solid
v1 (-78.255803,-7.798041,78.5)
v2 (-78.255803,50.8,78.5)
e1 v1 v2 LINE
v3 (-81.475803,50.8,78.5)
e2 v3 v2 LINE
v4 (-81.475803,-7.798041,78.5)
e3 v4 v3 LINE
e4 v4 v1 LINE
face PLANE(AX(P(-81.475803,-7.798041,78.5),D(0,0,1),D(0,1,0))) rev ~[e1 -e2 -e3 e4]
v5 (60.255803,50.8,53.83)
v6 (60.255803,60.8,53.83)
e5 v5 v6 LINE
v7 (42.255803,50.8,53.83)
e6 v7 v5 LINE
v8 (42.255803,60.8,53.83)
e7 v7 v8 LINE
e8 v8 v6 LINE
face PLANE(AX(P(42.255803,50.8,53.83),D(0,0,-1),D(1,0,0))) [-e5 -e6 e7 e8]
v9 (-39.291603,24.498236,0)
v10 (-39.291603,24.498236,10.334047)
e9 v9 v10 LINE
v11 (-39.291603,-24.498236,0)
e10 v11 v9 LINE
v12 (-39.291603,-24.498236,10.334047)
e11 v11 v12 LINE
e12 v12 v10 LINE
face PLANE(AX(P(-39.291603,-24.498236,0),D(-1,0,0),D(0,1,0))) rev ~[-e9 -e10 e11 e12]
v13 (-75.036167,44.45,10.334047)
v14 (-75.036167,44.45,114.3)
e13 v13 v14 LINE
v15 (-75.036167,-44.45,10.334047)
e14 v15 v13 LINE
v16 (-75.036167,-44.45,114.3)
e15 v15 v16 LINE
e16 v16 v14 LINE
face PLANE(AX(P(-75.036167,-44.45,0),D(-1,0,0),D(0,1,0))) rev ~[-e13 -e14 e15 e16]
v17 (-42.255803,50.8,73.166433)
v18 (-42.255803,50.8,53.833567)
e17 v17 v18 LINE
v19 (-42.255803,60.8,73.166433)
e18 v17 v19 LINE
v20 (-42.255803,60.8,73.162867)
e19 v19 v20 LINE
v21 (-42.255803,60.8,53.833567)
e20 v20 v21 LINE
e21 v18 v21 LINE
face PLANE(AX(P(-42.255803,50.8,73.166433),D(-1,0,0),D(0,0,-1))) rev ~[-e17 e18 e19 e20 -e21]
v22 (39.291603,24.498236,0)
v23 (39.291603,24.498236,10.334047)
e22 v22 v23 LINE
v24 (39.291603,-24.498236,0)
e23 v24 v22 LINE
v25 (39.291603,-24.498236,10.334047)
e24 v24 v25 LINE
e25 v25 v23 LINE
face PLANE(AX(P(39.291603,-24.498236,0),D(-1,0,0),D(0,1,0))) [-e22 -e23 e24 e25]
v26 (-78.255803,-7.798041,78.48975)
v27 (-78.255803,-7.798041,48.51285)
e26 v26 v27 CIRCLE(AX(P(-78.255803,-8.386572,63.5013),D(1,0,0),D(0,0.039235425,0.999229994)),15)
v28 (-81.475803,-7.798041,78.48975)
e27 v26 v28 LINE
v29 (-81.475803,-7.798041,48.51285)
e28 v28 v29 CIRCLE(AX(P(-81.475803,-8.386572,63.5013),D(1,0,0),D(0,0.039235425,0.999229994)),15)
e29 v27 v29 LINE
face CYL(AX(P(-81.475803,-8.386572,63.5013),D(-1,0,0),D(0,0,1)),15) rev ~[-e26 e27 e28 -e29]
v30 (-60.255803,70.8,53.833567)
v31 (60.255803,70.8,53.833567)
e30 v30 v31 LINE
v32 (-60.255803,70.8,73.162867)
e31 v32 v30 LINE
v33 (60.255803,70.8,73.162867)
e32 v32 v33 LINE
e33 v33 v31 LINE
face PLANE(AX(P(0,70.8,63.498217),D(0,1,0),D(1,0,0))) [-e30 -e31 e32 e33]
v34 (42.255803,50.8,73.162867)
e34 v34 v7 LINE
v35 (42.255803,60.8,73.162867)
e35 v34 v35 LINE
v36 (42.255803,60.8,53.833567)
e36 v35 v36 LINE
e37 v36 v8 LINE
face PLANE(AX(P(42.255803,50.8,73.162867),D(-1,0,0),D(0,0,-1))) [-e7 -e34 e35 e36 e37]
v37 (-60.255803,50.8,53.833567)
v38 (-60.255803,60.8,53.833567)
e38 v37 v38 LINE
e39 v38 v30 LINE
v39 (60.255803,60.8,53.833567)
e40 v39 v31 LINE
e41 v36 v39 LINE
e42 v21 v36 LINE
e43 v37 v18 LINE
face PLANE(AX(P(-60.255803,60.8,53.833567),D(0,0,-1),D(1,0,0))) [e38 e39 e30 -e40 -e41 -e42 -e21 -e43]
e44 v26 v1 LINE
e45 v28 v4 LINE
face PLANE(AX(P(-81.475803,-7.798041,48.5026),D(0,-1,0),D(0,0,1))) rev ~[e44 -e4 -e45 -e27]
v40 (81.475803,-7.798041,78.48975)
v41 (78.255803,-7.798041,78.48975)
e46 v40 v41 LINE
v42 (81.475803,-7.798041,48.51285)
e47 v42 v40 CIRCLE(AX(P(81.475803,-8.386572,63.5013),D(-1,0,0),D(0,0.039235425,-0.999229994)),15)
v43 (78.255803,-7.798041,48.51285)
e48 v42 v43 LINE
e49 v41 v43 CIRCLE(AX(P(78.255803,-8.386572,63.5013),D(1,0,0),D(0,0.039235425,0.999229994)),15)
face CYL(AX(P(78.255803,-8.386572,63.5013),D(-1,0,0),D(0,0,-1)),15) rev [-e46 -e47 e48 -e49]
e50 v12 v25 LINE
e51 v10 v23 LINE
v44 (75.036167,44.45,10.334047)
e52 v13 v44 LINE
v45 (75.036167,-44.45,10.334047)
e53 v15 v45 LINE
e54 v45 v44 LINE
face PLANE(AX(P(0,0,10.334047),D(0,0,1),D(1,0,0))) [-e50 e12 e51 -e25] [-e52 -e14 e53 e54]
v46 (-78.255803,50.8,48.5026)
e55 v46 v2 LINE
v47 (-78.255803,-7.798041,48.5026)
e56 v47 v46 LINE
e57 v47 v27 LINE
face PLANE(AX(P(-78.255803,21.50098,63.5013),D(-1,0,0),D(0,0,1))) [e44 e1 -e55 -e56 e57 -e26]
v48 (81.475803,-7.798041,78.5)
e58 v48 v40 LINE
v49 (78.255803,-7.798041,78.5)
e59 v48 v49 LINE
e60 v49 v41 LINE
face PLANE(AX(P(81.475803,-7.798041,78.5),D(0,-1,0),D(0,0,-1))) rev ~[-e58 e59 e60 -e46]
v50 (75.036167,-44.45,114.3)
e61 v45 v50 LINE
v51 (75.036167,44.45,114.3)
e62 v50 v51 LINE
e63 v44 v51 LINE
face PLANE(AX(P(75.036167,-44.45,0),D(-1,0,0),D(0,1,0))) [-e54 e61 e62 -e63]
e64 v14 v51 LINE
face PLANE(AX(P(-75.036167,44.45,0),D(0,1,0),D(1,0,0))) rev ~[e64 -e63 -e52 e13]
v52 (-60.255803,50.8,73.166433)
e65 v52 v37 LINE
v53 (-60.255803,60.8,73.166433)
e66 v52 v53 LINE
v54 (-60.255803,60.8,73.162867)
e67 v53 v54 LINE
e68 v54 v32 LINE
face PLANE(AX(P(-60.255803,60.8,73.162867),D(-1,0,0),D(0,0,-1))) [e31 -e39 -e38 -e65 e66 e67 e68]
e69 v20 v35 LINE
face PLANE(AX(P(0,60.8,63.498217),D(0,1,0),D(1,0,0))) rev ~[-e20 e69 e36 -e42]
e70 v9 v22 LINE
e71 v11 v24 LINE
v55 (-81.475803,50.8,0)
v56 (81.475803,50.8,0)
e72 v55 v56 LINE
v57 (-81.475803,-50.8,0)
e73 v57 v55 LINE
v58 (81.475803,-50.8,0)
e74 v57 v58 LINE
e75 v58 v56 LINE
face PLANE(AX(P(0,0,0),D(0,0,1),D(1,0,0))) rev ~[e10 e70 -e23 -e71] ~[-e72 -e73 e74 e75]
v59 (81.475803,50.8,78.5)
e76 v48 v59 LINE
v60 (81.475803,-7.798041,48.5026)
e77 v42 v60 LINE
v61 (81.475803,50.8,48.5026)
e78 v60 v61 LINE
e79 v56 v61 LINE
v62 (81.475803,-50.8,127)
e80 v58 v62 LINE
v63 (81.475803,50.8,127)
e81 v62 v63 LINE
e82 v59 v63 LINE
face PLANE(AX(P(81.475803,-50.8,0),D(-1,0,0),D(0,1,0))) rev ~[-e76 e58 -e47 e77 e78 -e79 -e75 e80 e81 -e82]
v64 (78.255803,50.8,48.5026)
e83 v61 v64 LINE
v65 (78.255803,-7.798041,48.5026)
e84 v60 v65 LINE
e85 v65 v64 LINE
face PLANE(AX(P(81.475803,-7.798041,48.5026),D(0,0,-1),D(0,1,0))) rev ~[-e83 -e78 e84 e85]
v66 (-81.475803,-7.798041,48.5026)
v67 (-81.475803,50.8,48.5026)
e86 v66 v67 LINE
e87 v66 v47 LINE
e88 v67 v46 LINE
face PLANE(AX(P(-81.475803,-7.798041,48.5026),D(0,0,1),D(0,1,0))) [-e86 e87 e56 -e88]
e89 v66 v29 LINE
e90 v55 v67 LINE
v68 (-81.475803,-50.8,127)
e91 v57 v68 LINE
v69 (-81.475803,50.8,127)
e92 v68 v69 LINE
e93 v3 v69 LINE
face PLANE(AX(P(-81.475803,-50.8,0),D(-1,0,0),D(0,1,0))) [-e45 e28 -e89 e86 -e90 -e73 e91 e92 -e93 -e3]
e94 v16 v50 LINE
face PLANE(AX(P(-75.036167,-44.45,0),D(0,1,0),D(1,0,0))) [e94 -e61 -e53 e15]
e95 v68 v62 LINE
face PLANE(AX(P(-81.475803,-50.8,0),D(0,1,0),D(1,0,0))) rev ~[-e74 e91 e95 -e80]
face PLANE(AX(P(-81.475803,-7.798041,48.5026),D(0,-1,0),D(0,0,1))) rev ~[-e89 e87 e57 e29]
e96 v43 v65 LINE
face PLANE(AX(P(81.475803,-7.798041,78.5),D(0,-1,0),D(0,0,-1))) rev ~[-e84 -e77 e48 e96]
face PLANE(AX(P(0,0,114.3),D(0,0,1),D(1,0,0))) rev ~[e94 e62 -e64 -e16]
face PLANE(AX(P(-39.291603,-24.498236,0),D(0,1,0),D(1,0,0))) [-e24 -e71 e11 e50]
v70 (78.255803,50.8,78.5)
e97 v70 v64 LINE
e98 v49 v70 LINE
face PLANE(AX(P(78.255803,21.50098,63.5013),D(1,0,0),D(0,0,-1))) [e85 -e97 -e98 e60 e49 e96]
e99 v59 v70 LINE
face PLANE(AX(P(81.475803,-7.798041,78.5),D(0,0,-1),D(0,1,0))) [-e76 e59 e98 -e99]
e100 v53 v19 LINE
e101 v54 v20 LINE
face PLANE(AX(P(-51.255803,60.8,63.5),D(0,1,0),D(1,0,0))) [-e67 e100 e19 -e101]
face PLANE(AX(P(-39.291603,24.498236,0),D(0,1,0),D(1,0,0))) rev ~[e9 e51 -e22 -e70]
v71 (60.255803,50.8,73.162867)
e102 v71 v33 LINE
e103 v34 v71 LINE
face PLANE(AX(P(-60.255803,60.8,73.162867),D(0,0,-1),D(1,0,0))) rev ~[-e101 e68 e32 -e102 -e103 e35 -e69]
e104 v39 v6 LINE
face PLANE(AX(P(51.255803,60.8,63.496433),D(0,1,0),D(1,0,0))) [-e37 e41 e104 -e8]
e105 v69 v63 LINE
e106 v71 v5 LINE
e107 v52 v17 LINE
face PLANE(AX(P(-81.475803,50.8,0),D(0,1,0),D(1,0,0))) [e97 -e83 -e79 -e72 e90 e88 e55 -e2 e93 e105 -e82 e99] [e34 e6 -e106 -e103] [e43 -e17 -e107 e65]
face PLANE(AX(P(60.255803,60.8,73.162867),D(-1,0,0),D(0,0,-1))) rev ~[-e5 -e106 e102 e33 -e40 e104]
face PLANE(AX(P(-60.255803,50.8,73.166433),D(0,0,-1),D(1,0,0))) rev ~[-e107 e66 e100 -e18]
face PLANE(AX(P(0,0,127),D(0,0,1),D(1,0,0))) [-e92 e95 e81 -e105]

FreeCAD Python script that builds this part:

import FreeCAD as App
import Part
import Sketcher
from FreeCAD import Vector
Q = App.Units.Quantity

doc = App.newDocument("Part")
body = doc.addObject("PartDesign::Body", "Body")

sketch1 = doc.addObject("Sketcher::SketchObject", "Sketch")
body.addObject(sketch1)
sketch1.AttachmentSupport = (doc.XY_Plane, [""])
sketch1.MapMode = "FlatFace"
sketch1.addGeometry([
    Part.LineSegment(Vector(-81.475803, 50.8, 0), Vector(-81.475803, -50.8, 0)),
    Part.LineSegment(Vector(-81.475803, -50.8, 0), Vector(81.475803, -50.8, 0)),
    Part.LineSegment(Vector(81.475803, -50.8, 0), Vector(81.475803, 50.8, 0)),
    Part.LineSegment(Vector(81.475803, 50.8, 0), Vector(-81.475803, 50.8, 0)),
], False)
sketch1.addConstraint([
    Sketcher.Constraint("Coincident", 0, 2, 1, 1),
    Sketcher.Constraint("Coincident", 1, 2, 2, 1),
    Sketcher.Constraint("Coincident", 2, 2, 3, 1),
    Sketcher.Constraint("Coincident", 3, 2, 0, 1),
    Sketcher.Constraint("Vertical", 0),
    Sketcher.Constraint("Horizontal", 1),
    Sketcher.Constraint("Vertical", 2),
    Sketcher.Constraint("Horizontal", 3),
    Sketcher.Constraint("Symmetric", 0, 2, 2, 2, -1, 1),
    Sketcher.Constraint("DistanceY", 0, 2, 0, 1, Q("4 in")),
    Sketcher.Constraint("DistanceX", 1, 1, 1, 2, 162.951606),
])
pad1 = doc.addObject("PartDesign::Pad", "Pad")
body.addObject(pad1)
pad1.Profile = sketch1
pad1.Length = Q("5 in")

sketch2 = doc.addObject("Sketcher::SketchObject", "Sketch001")
body.addObject(sketch2)
sketch2.AttachmentSupport = (doc.XY_Plane, [""])
sketch2.MapMode = "FlatFace"
sketch2.addGeometry([
    Part.LineSegment(Vector(-75.036167, 44.45, 0), Vector(-75.036167, -44.45, 0)),
    Part.LineSegment(Vector(-75.036167, -44.45, 0), Vector(75.036167, -44.45, 0)),
    Part.LineSegment(Vector(75.036167, -44.45, 0), Vector(75.036167, 44.45, 0)),
    Part.LineSegment(Vector(75.036167, 44.45, 0), Vector(-75.036167, 44.45, 0)),
], False)
sketch2.addConstraint([
    Sketcher.Constraint("Coincident", 0, 2, 1, 1),
    Sketcher.Constraint("Coincident", 1, 2, 2, 1),
    Sketcher.Constraint("Coincident", 2, 2, 3, 1),
    Sketcher.Constraint("Coincident", 3, 2, 0, 1),
    Sketcher.Constraint("Vertical", 0),
    Sketcher.Constraint("Horizontal", 1),
    Sketcher.Constraint("Vertical", 2),
    Sketcher.Constraint("Horizontal", 3),
    Sketcher.Constraint("Symmetric", 0, 2, 2, 2, -1, 1),
    Sketcher.Constraint("DistanceY", 0, 2, 0, 1, Q("3.5 in")),
    Sketcher.Constraint("DistanceX", 1, 1, 1, 2, 150.072335),
])
pocket1 = doc.addObject("PartDesign::Pocket", "Pocket")
body.addObject(pocket1)
pocket1.Profile = sketch2
pocket1.Length = Q("4.5 in")
pocket1.Reversed = True

sketch3 = doc.addObject("Sketcher::SketchObject", "Sketch002")
body.addObject(sketch3)
sketch3.AttachmentSupport = (doc.YZ_Plane, [""])
sketch3.MapMode = "FlatFace"
sketch3.AttachmentOffset = App.Placement(Vector(0, 0, -81.475803), App.Rotation())
sketch3.addGeometry([
    Part.LineSegment(Vector(50.8, 48.5026, 0), Vector(-7.798041, 48.5026, 0)),
    Part.LineSegment(Vector(-7.798041, 48.5026, 0), Vector(-7.798041, 78.5, 0)),
    Part.LineSegment(Vector(-7.798041, 78.5, 0), Vector(50.8, 78.5, 0)),
    Part.LineSegment(Vector(50.8, 78.5, 0), Vector(50.8, 48.5026, 0)),
], False)
sketch3.addConstraint([
    Sketcher.Constraint("Coincident", 0, 2, 1, 1),
    Sketcher.Constraint("Coincident", 1, 2, 2, 1),
    Sketcher.Constraint("Coincident", 2, 2, 3, 1),
    Sketcher.Constraint("Coincident", 3, 2, 0, 1),
    Sketcher.Constraint("Horizontal", 0),
    Sketcher.Constraint("Vertical", 1),
    Sketcher.Constraint("Horizontal", 2),
    Sketcher.Constraint("Vertical", 3),
    Sketcher.Constraint("DistanceX", -1, 1, 2, 2, Q("2 in")),
    Sketcher.Constraint("DistanceY", 1, 1, 1, 2, Q("1.181 in")),
    Sketcher.Constraint("DistanceX", 0, 2, 0, 1, 58.598041),
    Sketcher.Constraint("DistanceY", -1, 1, 0, 2, 48.5026),
])
pocket2 = doc.addObject("PartDesign::Pocket", "Pocket001")
body.addObject(pocket2)
pocket2.Profile = sketch3
pocket2.Length = 3.22
pocket2.Reversed = True

sketch4 = doc.addObject("Sketcher::SketchObject", "Sketch003")
body.addObject(sketch4)
sketch4.AttachmentSupport = (doc.YZ_Plane, [""])
sketch4.MapMode = "FlatFace"
sketch4.AttachmentOffset = App.Placement(Vector(0, 0, -81.475803), App.Rotation())
sketch4.addGeometry(Part.Circle(Vector(-8.386572, 63.5013, 0), Vector(0, 0, 1), 15), False)
sketch4.addConstraint([
    Sketcher.Constraint("Diameter", 0, 30.0),
    Sketcher.Constraint("DistanceY", -1, 1, 0, 3, 63.5013),
    Sketcher.Constraint("DistanceX", 0, 3, -1, 1, 8.386572),
])
pocket3 = doc.addObject("PartDesign::Pocket", "Pocket002")
body.addObject(pocket3)
pocket3.Profile = sketch4
pocket3.Length = 3.22
pocket3.Reversed = True

sketch5 = doc.addObject("Sketcher::SketchObject", "Sketch004")
body.addObject(sketch5)
sketch5.AttachmentSupport = (doc.YZ_Plane, [""])
sketch5.MapMode = "FlatFace"
sketch5.AttachmentOffset = App.Placement(Vector(0, 0, 81.475803), App.Rotation())
sketch5.addGeometry([
    Part.LineSegment(Vector(50.8, 78.5, 0), Vector(-7.798041, 78.5, 0)),
    Part.LineSegment(Vector(-7.798041, 78.5, 0), Vector(-7.798041, 48.5026, 0)),
    Part.LineSegment(Vector(-7.798041, 48.5026, 0), Vector(50.8, 48.5026, 0)),
    Part.LineSegment(Vector(50.8, 48.5026, 0), Vector(50.8, 78.5, 0)),
], False)
sketch5.addConstraint([
    Sketcher.Constraint("Coincident", 0, 2, 1, 1),
    Sketcher.Constraint("Coincident", 1, 2, 2, 1),
    Sketcher.Constraint("Coincident", 2, 2, 3, 1),
    Sketcher.Constraint("Coincident", 3, 2, 0, 1),
    Sketcher.Constraint("Horizontal", 0),
    Sketcher.Constraint("Vertical", 1),
    Sketcher.Constraint("Horizontal", 2),
    Sketcher.Constraint("Vertical", 3),
    Sketcher.Constraint("DistanceX", -1, 1, 2, 2, Q("2 in")),
    Sketcher.Constraint("DistanceY", 1, 2, 1, 1, Q("1.181 in")),
    Sketcher.Constraint("DistanceX", 0, 2, 0, 1, 58.598041),
    Sketcher.Constraint("DistanceY", -1, 1, 0, 2, 78.5),
])
pocket4 = doc.addObject("PartDesign::Pocket", "Pocket003")
body.addObject(pocket4)
pocket4.Profile = sketch5
pocket4.Length = 3.22

sketch6 = doc.addObject("Sketcher::SketchObject", "Sketch005")
body.addObject(sketch6)
sketch6.AttachmentSupport = (doc.YZ_Plane, [""])
sketch6.MapMode = "FlatFace"
sketch6.AttachmentOffset = App.Placement(Vector(0, 0, 78.255803), App.Rotation())
sketch6.addGeometry(Part.Circle(Vector(-8.386572, 63.5013, 0), Vector(0, 0, 1), 15), False)
sketch6.addConstraint([
    Sketcher.Constraint("Diameter", 0, 30.0),
    Sketcher.Constraint("DistanceY", -1, 1, 0, 3, 63.5013),
    Sketcher.Constraint("DistanceX", 0, 3, -1, 1, 8.386572),
])
pocket5 = doc.addObject("PartDesign::Pocket", "Pocket004")
body.addObject(pocket5)
pocket5.Profile = sketch6
pocket5.Length = 3.22
pocket5.Reversed = True

sketch7 = doc.addObject("Sketcher::SketchObject", "Sketch006")
body.addObject(sketch7)
sketch7.AttachmentSupport = (doc.XZ_Plane, [""])
sketch7.MapMode = "FlatFace"
sketch7.AttachmentOffset = App.Placement(Vector(0, 0, -2 * 25.4), App.Rotation())
sketch7.addGeometry([
    Part.LineSegment(Vector(-60.255803, 53.833567, 0), Vector(-60.255803, 73.166433, 0)),
    Part.LineSegment(Vector(-60.255803, 73.166433, 0), Vector(-42.255803, 73.166433, 0)),
    Part.LineSegment(Vector(-42.255803, 73.166433, 0), Vector(-42.255803, 53.833567, 0)),
    Part.LineSegment(Vector(-42.255803, 53.833567, 0), Vector(-60.255803, 53.833567, 0)),
    Part.LineSegment(Vector(42.255803, 53.83, 0), Vector(42.255803, 73.162867, 0)),
    Part.LineSegment(Vector(42.255803, 73.162867, 0), Vector(60.255803, 73.162867, 0)),
    Part.LineSegment(Vector(60.255803, 73.162867, 0), Vector(60.255803, 53.83, 0)),
    Part.LineSegment(Vector(60.255803, 53.83, 0), Vector(42.255803, 53.83, 0)),
], False)
sketch7.addConstraint([
    Sketcher.Constraint("Coincident", 0, 2, 1, 1),
    Sketcher.Constraint("Coincident", 1, 2, 2, 1),
    Sketcher.Constraint("Coincident", 2, 2, 3, 1),
    Sketcher.Constraint("Coincident", 3, 2, 0, 1),
    Sketcher.Constraint("Coincident", 4, 2, 5, 1),
    Sketcher.Constraint("Coincident", 5, 2, 6, 1),
    Sketcher.Constraint("Coincident", 6, 2, 7, 1),
    Sketcher.Constraint("Coincident", 7, 2, 4, 1),
    Sketcher.Constraint("Vertical", 0),
    Sketcher.Constraint("Horizontal", 1),
    Sketcher.Constraint("Vertical", 2),
    Sketcher.Constraint("Horizontal", 3),
    Sketcher.Constraint("Vertical", 4),
    Sketcher.Constraint("Horizontal", 5),
    Sketcher.Constraint("Vertical", 6),
    Sketcher.Constraint("Horizontal", 7),
    Sketcher.Constraint("Equal", 3, 5),
    Sketcher.Constraint("Equal", 2, 4),
    Sketcher.Constraint("DistanceX", 1, 1, 1, 2, 18.0),
    Sketcher.Constraint("DistanceY", -1, 1, 6, 2, 53.83),
    Sketcher.Constraint("DistanceY", 2, 2, 4, 2, 19.3293),
    Sketcher.Constraint("DistanceY", 0, 1, 0, 2, 19.332867),
    Sketcher.Constraint("DistanceX", 0, 2, -1, 1, 60.255803),
    Sketcher.Constraint("DistanceX", -1, 1, 4, 2, 42.255803),
])
pad2 = doc.addObject("PartDesign::Pad", "Pad001")
body.addObject(pad2)
pad2.Profile = sketch7
pad2.Length = 10
pad2.Reversed = True

sketch8 = doc.addObject("Sketcher::SketchObject", "Sketch007")
body.addObject(sketch8)
sketch8.AttachmentSupport = (doc.XZ_Plane, [""])
sketch8.MapMode = "FlatFace"
sketch8.AttachmentOffset = App.Placement(Vector(0, 0, -60.8), App.Rotation())
sketch8.addGeometry([
    Part.LineSegment(Vector(-60.255803, 53.833567, 0), Vector(-60.255803, 73.162867, 0)),
    Part.LineSegment(Vector(-60.255803, 73.162867, 0), Vector(60.255803, 73.162867, 0)),
    Part.LineSegment(Vector(60.255803, 73.162867, 0), Vector(60.255803, 53.833567, 0)),
    Part.LineSegment(Vector(60.255803, 53.833567, 0), Vector(-60.255803, 53.833567, 0)),
], False)
sketch8.addConstraint([
    Sketcher.Constraint("Coincident", 0, 2, 1, 1),
    Sketcher.Constraint("Coincident", 1, 2, 2, 1),
    Sketcher.Constraint("Coincident", 2, 2, 3, 1),
    Sketcher.Constraint("Coincident", 3, 2, 0, 1),
    Sketcher.Constraint("Vertical", 0),
    Sketcher.Constraint("Horizontal", 1),
    Sketcher.Constraint("Vertical", 2),
    Sketcher.Constraint("Horizontal", 3),
    Sketcher.Constraint("DistanceY", 0, 1, 0, 2, 19.3293),
    Sketcher.Constraint("DistanceX", 1, 1, 1, 2, 120.511606),
    Sketcher.Constraint("DistanceX", 0, 2, -1, 1, 60.255803),
    Sketcher.Constraint("DistanceY", -1, 1, 0, 2, 73.162867),
])
pad3 = doc.addObject("PartDesign::Pad", "Pad002")
body.addObject(pad3)
pad3.Profile = sketch8
pad3.Length = 10
pad3.Reversed = True

sketch9 = doc.addObject("Sketcher::SketchObject", "Sketch008")
body.addObject(sketch9)
sketch9.AttachmentSupport = (doc.XY_Plane, [""])
sketch9.MapMode = "FlatFace"
sketch9.addGeometry([
    Part.LineSegment(Vector(-75.036167, 44.45, 0), Vector(-75.036167, -44.45, 0)),
    Part.LineSegment(Vector(-75.036167, -44.45, 0), Vector(75.036167, -44.45, 0)),
    Part.LineSegment(Vector(75.036167, -44.45, 0), Vector(75.036167, 44.45, 0)),
    Part.LineSegment(Vector(75.036167, 44.45, 0), Vector(-75.036167, 44.45, 0)),
], False)
sketch9.addConstraint([
    Sketcher.Constraint("Coincident", 0, 2, 1, 1),
    Sketcher.Constraint("Coincident", 1, 2, 2, 1),
    Sketcher.Constraint("Coincident", 2, 2, 3, 1),
    Sketcher.Constraint("Coincident", 3, 2, 0, 1),
    Sketcher.Constraint("Vertical", 0),
    Sketcher.Constraint("Horizontal", 1),
    Sketcher.Constraint("Vertical", 2),
    Sketcher.Constraint("Horizontal", 3),
    Sketcher.Constraint("Symmetric", 0, 2, 2, 2, -1, 1),
    Sketcher.Constraint("DistanceY", 0, 2, 0, 1, Q("3.5 in")),
    Sketcher.Constraint("DistanceX", 1, 1, 1, 2, 150.072335),
])
pad4 = doc.addObject("PartDesign::Pad", "Pad003")
body.addObject(pad4)
pad4.Profile = sketch9
pad4.Length = 10.334047

sketch10 = doc.addObject("Sketcher::SketchObject", "Sketch009")
body.addObject(sketch10)
sketch10.AttachmentSupport = (doc.XY_Plane, [""])
sketch10.MapMode = "FlatFace"
sketch10.addGeometry([
    Part.LineSegment(Vector(-39.291603, 24.498236, 0), Vector(-39.291603, -24.498236, 0)),
    Part.LineSegment(Vector(-39.291603, -24.498236, 0), Vector(39.291603, -24.498236, 0)),
    Part.LineSegment(Vector(39.291603, -24.498236, 0), Vector(39.291603, 24.498236, 0)),
    Part.LineSegment(Vector(39.291603, 24.498236, 0), Vector(-39.291603, 24.498236, 0)),
], False)
sketch10.addConstraint([
    Sketcher.Constraint("Coincident", 0, 2, 1, 1),
    Sketcher.Constraint("Coincident", 1, 2, 2, 1),
    Sketcher.Constraint("Coincident", 2, 2, 3, 1),
    Sketcher.Constraint("Coincident", 3, 2, 0, 1),
    Sketcher.Constraint("Vertical", 0),
    Sketcher.Constraint("Horizontal", 1),
    Sketcher.Constraint("Vertical", 2),
    Sketcher.Constraint("Horizontal", 3),
    Sketcher.Constraint("Symmetric", 0, 2, 2, 2, -1, 1),
    Sketcher.Constraint("DistanceY", 0, 2, 0, 1, 48.996472),
    Sketcher.Constraint("DistanceX", 1, 1, 1, 2, 78.583206),
])
pocket6 = doc.addObject("PartDesign::Pocket", "Pocket005")
body.addObject(pocket6)
pocket6.Profile = sketch10
pocket6.Length = 10.334047
pocket6.Reversed = True

doc.recompute()
